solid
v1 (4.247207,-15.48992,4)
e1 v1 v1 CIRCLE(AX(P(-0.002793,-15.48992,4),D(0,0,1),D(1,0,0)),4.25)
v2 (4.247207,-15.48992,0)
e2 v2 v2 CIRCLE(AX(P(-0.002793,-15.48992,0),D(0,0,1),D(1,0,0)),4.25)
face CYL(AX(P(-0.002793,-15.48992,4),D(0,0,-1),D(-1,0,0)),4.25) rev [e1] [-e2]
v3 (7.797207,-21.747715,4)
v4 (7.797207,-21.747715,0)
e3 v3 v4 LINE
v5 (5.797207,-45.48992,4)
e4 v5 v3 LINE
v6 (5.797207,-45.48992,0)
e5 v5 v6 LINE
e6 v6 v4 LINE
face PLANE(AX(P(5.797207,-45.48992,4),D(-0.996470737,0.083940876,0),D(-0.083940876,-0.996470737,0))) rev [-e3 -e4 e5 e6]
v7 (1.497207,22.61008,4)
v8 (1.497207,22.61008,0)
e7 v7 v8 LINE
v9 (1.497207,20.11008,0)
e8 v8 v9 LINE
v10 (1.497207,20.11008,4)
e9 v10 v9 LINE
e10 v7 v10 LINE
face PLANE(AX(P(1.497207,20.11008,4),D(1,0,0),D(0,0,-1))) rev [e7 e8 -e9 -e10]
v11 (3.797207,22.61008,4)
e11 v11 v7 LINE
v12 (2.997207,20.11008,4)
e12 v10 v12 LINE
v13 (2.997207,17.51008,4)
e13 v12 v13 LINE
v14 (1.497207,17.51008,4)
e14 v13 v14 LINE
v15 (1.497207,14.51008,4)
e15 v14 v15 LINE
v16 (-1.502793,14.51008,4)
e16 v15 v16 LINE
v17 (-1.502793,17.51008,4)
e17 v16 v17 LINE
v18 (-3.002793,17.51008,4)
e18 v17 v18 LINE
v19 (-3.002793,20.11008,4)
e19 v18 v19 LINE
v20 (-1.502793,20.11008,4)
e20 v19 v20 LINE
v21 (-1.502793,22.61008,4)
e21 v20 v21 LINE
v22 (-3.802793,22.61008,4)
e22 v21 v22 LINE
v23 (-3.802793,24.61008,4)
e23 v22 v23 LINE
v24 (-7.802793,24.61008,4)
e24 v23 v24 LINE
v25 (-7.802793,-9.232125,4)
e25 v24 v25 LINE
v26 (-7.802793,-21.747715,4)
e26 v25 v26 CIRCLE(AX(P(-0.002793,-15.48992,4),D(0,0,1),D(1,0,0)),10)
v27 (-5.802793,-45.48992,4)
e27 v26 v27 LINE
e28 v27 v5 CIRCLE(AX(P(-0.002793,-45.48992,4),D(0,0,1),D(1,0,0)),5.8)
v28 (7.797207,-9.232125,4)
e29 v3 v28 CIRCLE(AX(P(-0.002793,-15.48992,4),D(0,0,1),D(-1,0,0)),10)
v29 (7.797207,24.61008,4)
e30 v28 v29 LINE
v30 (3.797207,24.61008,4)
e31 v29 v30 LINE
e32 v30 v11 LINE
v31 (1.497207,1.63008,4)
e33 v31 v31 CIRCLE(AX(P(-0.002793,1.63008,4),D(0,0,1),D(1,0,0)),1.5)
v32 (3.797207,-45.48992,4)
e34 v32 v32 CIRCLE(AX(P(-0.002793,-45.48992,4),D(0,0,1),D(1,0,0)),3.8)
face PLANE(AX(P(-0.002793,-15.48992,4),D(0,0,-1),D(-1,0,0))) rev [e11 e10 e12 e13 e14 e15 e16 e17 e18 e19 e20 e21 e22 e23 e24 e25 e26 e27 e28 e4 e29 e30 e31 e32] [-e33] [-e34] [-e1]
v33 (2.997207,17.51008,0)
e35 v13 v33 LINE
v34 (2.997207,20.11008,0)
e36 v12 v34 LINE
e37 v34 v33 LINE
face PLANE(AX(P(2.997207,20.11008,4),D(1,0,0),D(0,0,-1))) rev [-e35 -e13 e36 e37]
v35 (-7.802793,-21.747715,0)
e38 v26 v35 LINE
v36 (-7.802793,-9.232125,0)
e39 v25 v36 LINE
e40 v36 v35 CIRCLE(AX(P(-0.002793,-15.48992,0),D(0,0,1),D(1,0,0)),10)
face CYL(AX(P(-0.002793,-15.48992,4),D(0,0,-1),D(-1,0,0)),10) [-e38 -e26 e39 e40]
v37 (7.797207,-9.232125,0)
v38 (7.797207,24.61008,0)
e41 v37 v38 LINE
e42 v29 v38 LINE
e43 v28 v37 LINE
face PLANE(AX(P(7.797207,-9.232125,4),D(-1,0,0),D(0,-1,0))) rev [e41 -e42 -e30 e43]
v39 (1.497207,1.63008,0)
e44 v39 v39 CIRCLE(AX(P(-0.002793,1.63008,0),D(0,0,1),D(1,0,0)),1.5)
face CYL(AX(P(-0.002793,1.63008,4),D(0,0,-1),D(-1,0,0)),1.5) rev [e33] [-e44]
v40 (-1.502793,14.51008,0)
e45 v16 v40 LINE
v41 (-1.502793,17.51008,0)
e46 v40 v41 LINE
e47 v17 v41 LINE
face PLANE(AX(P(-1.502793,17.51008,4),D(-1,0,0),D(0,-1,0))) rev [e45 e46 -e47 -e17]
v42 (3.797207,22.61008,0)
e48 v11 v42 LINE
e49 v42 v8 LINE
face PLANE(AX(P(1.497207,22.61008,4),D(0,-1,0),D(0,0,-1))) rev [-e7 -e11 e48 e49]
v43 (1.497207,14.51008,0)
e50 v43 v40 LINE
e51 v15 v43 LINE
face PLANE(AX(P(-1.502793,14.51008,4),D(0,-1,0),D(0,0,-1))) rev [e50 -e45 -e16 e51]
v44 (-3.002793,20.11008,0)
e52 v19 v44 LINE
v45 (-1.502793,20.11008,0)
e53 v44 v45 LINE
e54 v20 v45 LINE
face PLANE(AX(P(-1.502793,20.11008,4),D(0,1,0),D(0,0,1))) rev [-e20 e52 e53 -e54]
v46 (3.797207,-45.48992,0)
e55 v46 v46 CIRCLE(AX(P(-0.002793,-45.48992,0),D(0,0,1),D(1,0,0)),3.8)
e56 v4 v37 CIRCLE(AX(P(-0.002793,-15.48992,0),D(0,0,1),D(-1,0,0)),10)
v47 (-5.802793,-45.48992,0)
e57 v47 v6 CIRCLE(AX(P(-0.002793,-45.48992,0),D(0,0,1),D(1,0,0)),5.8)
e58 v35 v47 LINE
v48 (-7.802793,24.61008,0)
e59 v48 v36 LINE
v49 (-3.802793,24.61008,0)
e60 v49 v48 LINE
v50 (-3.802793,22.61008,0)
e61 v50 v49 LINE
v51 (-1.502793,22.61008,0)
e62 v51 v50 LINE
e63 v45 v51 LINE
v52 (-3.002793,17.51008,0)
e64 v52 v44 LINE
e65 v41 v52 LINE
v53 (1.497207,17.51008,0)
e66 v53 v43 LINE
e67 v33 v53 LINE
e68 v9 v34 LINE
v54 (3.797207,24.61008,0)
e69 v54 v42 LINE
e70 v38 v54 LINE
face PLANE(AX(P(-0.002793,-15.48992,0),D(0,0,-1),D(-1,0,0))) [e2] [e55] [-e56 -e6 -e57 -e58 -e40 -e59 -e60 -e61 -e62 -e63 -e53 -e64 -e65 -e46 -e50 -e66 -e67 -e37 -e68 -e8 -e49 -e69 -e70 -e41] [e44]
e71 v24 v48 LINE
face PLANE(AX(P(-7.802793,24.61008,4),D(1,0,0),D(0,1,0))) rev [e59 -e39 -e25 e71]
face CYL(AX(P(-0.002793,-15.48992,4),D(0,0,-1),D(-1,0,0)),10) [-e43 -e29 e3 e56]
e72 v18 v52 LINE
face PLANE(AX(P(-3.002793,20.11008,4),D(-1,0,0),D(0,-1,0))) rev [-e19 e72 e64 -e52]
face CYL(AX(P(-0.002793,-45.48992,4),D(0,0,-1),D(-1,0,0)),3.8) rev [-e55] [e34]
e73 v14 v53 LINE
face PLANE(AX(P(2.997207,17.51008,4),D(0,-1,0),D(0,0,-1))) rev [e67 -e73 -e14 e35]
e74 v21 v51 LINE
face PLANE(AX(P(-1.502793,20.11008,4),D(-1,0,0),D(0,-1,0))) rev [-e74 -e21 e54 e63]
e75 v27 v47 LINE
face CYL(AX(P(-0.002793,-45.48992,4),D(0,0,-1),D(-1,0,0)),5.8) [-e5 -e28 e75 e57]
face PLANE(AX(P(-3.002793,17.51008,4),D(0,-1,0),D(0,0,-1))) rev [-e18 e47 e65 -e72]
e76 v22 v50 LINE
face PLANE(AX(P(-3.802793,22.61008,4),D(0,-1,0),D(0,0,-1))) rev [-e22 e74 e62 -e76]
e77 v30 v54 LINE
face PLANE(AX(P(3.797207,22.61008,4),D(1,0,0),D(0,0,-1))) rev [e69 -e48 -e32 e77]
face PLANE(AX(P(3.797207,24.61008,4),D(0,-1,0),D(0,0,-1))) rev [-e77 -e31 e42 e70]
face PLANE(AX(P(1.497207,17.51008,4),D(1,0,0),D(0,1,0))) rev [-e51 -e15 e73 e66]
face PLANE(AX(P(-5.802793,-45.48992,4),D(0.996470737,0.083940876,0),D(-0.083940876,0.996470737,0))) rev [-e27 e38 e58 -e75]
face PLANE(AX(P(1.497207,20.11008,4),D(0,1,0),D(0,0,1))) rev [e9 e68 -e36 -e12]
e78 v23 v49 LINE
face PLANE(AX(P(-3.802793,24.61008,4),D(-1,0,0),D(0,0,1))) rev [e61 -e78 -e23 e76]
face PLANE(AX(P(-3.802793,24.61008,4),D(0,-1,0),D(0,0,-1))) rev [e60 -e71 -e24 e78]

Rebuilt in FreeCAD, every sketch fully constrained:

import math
import FreeCAD as App
import Part
import Sketcher

doc = App.newDocument("Part")
body = doc.addObject("PartDesign::Body", "Body")

# Sketch on XY plane
sketch1 = body.newObject("Sketcher::SketchObject", "Sketch")
sketch1.AttachmentSupport = (doc.getObject("XY_Plane"), [""])
sketch1.MapMode = "FlatFace"
sketch1.addGeometry([
    Part.LineSegment(App.Vector(3.8, 22.6, 0), App.Vector(1.5, 22.6, 0)),  # 0
    Part.LineSegment(App.Vector(1.5, 22.6, 0), App.Vector(1.5, 20.1, 0)),  # 1
    Part.LineSegment(App.Vector(1.5, 20.1, 0), App.Vector(3, 20.1, 0)),  # 2
    Part.LineSegment(App.Vector(3, 20.1, 0), App.Vector(3, 17.5, 0)),  # 3
    Part.LineSegment(App.Vector(3, 17.5, 0), App.Vector(1.5, 17.5, 0)),  # 4
    Part.LineSegment(App.Vector(1.5, 17.5, 0), App.Vector(1.5, 14.5, 0)),  # 5
    Part.LineSegment(App.Vector(1.5, 14.5, 0), App.Vector(-1.5, 14.5, 0)),  # 6
    Part.LineSegment(App.Vector(-1.5, 14.5, 0), App.Vector(-1.5, 17.5, 0)),  # 7
    Part.LineSegment(App.Vector(-1.5, 17.5, 0), App.Vector(-3, 17.5, 0)),  # 8
    Part.LineSegment(App.Vector(-3, 17.5, 0), App.Vector(-3, 20.1, 0)),  # 9
    Part.LineSegment(App.Vector(-3, 20.1, 0), App.Vector(-1.5, 20.1, 0)),  # 10
    Part.LineSegment(App.Vector(-1.5, 20.1, 0), App.Vector(-1.5, 22.6, 0)),  # 11
    Part.LineSegment(App.Vector(-1.5, 22.6, 0), App.Vector(-3.8, 22.6, 0)),  # 12
    Part.LineSegment(App.Vector(-3.8, 22.6, 0), App.Vector(-3.8, 24.6, 0)),  # 13
    Part.LineSegment(App.Vector(-3.8, 24.6, 0), App.Vector(-7.8, 24.6, 0)),  # 14
    Part.LineSegment(App.Vector(-7.8, 24.6, 0), App.Vector(-7.8, -9.2, 0)),  # 15
    Part.ArcOfCircle(Part.Circle(App.Vector(0, -15.5, 0), App.Vector(0, 0, 1), 10), math.radians(141), math.radians(219)),  # 16
    Part.LineSegment(App.Vector(-7.8, -21.7, 0), App.Vector(-5.8, -45.5, 0)),  # 17
    Part.ArcOfCircle(Part.Circle(App.Vector(0, -45.5, 0), App.Vector(0, 0, 1), 5.8), math.radians(180), math.radians(360)),  # 18
    Part.LineSegment(App.Vector(5.8, -45.5, 0), App.Vector(7.8, -21.7, 0)),  # 19
    Part.ArcOfCircle(Part.Circle(App.Vector(0, -15.5, 0), App.Vector(0, 0, 1), 10), math.radians(-39), math.radians(39)),  # 20
    Part.LineSegment(App.Vector(7.8, -9.2, 0), App.Vector(7.8, 24.6, 0)),  # 21
    Part.LineSegment(App.Vector(7.8, 24.6, 0), App.Vector(3.8, 24.6, 0)),  # 22
    Part.LineSegment(App.Vector(3.8, 24.6, 0), App.Vector(3.8, 22.6, 0)),  # 23
    Part.Circle(App.Vector(0, -45.5, 0), App.Vector(0, 0, 1), 3.8),  # 24
    Part.Circle(App.Vector(0, -15.5, 0), App.Vector(0, 0, 1), 4.2),  # 25
    Part.Circle(App.Vector(0, 1.6, 0), App.Vector(0, 0, 1), 1.5),  # 26
], False)
sketch1.addConstraint([
    Sketcher.Constraint("Coincident", 0, 2, 1, 1),
    Sketcher.Constraint("Coincident", 1, 2, 2, 1),
    Sketcher.Constraint("Coincident", 2, 2, 3, 1),
    Sketcher.Constraint("Coincident", 3, 2, 4, 1),
    Sketcher.Constraint("Coincident", 4, 2, 5, 1),
    Sketcher.Constraint("Coincident", 5, 2, 6, 1),
    Sketcher.Constraint("Coincident", 6, 2, 7, 1),
    Sketcher.Constraint("Coincident", 7, 2, 8, 1),
    Sketcher.Constraint("Coincident", 8, 2, 9, 1),
    Sketcher.Constraint("Coincident", 9, 2, 10, 1),
    Sketcher.Constraint("Coincident", 10, 2, 11, 1),
    Sketcher.Constraint("Coincident", 11, 2, 12, 1),
    Sketcher.Constraint("Coincident", 12, 2, 13, 1),
    Sketcher.Constraint("Coincident", 13, 2, 14, 1),
    Sketcher.Constraint("Coincident", 14, 2, 15, 1),
    Sketcher.Constraint("Coincident", 15, 2, 16, 1),
    Sketcher.Constraint("Coincident", 16, 2, 17, 1),
    Sketcher.Constraint("Coincident", 17, 2, 18, 1),
    Sketcher.Constraint("Coincident", 18, 2, 19, 1),
    Sketcher.Constraint("Coincident", 19, 2, 20, 1),
    Sketcher.Constraint("Coincident", 20, 2, 21, 1),
    Sketcher.Constraint("Coincident", 21, 2, 22, 1),
    Sketcher.Constraint("Coincident", 22, 2, 23, 1),
    Sketcher.Constraint("Coincident", 23, 2, 0, 1),
    Sketcher.Constraint("Horizontal", 0),
    Sketcher.Constraint("Vertical", 1),
    Sketcher.Constraint("Horizontal", 2),
    Sketcher.Constraint("Vertical", 3),
    Sketcher.Constraint("Horizontal", 4),
    Sketcher.Constraint("Vertical", 5),
    Sketcher.Constraint("Horizontal", 6),
    Sketcher.Constraint("Vertical", 7),
    Sketcher.Constraint("Horizontal", 8),
    Sketcher.Constraint("Vertical", 9),
    Sketcher.Constraint("Horizontal", 10),
    Sketcher.Constraint("Vertical", 11),
    Sketcher.Constraint("Horizontal", 12),
    Sketcher.Constraint("Vertical", 13),
    Sketcher.Constraint("Horizontal", 14),
    Sketcher.Constraint("Vertical", 15),
    Sketcher.Constraint("Vertical", 21),
    Sketcher.Constraint("Horizontal", 22),
    Sketcher.Constraint("Vertical", 23),
    Sketcher.Constraint("Coincident", 20, 3, 16, 3),
    Sketcher.Constraint("Coincident", 24, 3, 18, 3),
    Sketcher.Constraint("Coincident", 25, 3, 16, 3),
    Sketcher.Constraint("Equal", 16, 20),
    Sketcher.Constraint("Horizontal", 4, 2, 7, 2),
    Sketcher.Constraint("Horizontal", 2, 2, 9, 2),
    Sketcher.Constraint("Horizontal", 0, 2, 11, 2),
    Sketcher.Constraint("Horizontal", 24, 3, 17, 2),
    Sketcher.Constraint("Horizontal", 17, 2, 18, 2),
    Sketcher.Constraint("Horizontal", 16, 2, 19, 2),
    Sketcher.Constraint("Horizontal", 15, 2, 20, 2),
    Sketcher.Constraint("Horizontal", 14, 2, 21, 2),
    Sketcher.Constraint("Vertical", 16, 3, 18, 3),
    Sketcher.Constraint("Vertical", 25, 3, 26, 3),
    Sketcher.Constraint("Vertical", 1, 2, 4, 2),
    Sketcher.Constraint("Vertical", 7, 2, 10, 2),
    Sketcher.Constraint("Vertical", 15, 2, 16, 2),
    Sketcher.Constraint("Equal", 4, 8),
    Sketcher.Constraint("Equal", 0, 12),
    Sketcher.Constraint("Equal", 14, 22),
    Sketcher.Constraint("Equal", 6, 5),
    Sketcher.Constraint("Diameter", 26, 3.0),
    Sketcher.Constraint("Radius", 16, 10.0),
    Sketcher.Constraint("Diameter", 24, 7.6),
    Sketcher.Constraint("Diameter", 25, 8.5),
    Sketcher.Constraint("Radius", 18, 5.8),
    Sketcher.Constraint("DistanceX", 6, 2, 6, 1, 3.0),
    Sketcher.Constraint("DistanceX", 14, 2, 14, 1, 4.0),
    Sketcher.Constraint("DistanceY", 13, 1, 13, 2, 2.0),
    Sketcher.Constraint("DistanceX", 0, 2, 0, 1, 2.3),
    Sketcher.Constraint("DistanceX", 2, 1, 2, 2, 1.5),
    Sketcher.Constraint("DistanceY", 1, 2, 1, 1, 2.5),
    Sketcher.Constraint("DistanceY", 3, 2, 3, 1, 2.6),
    Sketcher.Constraint("DistanceY", 18, 3, 16, 3, 30.0),
    Sketcher.Constraint("DistanceY", 16, 3, 3, 2, 33.0),
    Sketcher.Constraint("DistanceY", 16, 3, 26, 3, 17.12),
    Sketcher.Constraint("DistanceY", 16, 3, -1, 1, 15.48992),
    Sketcher.Constraint("DistanceX", 16, 3, -1, 1, 0.002793),
])
pad1 = body.newObject("PartDesign::Pad", "Pad")
pad1.Profile = sketch1
pad1.Length = 4

doc.recompute()
